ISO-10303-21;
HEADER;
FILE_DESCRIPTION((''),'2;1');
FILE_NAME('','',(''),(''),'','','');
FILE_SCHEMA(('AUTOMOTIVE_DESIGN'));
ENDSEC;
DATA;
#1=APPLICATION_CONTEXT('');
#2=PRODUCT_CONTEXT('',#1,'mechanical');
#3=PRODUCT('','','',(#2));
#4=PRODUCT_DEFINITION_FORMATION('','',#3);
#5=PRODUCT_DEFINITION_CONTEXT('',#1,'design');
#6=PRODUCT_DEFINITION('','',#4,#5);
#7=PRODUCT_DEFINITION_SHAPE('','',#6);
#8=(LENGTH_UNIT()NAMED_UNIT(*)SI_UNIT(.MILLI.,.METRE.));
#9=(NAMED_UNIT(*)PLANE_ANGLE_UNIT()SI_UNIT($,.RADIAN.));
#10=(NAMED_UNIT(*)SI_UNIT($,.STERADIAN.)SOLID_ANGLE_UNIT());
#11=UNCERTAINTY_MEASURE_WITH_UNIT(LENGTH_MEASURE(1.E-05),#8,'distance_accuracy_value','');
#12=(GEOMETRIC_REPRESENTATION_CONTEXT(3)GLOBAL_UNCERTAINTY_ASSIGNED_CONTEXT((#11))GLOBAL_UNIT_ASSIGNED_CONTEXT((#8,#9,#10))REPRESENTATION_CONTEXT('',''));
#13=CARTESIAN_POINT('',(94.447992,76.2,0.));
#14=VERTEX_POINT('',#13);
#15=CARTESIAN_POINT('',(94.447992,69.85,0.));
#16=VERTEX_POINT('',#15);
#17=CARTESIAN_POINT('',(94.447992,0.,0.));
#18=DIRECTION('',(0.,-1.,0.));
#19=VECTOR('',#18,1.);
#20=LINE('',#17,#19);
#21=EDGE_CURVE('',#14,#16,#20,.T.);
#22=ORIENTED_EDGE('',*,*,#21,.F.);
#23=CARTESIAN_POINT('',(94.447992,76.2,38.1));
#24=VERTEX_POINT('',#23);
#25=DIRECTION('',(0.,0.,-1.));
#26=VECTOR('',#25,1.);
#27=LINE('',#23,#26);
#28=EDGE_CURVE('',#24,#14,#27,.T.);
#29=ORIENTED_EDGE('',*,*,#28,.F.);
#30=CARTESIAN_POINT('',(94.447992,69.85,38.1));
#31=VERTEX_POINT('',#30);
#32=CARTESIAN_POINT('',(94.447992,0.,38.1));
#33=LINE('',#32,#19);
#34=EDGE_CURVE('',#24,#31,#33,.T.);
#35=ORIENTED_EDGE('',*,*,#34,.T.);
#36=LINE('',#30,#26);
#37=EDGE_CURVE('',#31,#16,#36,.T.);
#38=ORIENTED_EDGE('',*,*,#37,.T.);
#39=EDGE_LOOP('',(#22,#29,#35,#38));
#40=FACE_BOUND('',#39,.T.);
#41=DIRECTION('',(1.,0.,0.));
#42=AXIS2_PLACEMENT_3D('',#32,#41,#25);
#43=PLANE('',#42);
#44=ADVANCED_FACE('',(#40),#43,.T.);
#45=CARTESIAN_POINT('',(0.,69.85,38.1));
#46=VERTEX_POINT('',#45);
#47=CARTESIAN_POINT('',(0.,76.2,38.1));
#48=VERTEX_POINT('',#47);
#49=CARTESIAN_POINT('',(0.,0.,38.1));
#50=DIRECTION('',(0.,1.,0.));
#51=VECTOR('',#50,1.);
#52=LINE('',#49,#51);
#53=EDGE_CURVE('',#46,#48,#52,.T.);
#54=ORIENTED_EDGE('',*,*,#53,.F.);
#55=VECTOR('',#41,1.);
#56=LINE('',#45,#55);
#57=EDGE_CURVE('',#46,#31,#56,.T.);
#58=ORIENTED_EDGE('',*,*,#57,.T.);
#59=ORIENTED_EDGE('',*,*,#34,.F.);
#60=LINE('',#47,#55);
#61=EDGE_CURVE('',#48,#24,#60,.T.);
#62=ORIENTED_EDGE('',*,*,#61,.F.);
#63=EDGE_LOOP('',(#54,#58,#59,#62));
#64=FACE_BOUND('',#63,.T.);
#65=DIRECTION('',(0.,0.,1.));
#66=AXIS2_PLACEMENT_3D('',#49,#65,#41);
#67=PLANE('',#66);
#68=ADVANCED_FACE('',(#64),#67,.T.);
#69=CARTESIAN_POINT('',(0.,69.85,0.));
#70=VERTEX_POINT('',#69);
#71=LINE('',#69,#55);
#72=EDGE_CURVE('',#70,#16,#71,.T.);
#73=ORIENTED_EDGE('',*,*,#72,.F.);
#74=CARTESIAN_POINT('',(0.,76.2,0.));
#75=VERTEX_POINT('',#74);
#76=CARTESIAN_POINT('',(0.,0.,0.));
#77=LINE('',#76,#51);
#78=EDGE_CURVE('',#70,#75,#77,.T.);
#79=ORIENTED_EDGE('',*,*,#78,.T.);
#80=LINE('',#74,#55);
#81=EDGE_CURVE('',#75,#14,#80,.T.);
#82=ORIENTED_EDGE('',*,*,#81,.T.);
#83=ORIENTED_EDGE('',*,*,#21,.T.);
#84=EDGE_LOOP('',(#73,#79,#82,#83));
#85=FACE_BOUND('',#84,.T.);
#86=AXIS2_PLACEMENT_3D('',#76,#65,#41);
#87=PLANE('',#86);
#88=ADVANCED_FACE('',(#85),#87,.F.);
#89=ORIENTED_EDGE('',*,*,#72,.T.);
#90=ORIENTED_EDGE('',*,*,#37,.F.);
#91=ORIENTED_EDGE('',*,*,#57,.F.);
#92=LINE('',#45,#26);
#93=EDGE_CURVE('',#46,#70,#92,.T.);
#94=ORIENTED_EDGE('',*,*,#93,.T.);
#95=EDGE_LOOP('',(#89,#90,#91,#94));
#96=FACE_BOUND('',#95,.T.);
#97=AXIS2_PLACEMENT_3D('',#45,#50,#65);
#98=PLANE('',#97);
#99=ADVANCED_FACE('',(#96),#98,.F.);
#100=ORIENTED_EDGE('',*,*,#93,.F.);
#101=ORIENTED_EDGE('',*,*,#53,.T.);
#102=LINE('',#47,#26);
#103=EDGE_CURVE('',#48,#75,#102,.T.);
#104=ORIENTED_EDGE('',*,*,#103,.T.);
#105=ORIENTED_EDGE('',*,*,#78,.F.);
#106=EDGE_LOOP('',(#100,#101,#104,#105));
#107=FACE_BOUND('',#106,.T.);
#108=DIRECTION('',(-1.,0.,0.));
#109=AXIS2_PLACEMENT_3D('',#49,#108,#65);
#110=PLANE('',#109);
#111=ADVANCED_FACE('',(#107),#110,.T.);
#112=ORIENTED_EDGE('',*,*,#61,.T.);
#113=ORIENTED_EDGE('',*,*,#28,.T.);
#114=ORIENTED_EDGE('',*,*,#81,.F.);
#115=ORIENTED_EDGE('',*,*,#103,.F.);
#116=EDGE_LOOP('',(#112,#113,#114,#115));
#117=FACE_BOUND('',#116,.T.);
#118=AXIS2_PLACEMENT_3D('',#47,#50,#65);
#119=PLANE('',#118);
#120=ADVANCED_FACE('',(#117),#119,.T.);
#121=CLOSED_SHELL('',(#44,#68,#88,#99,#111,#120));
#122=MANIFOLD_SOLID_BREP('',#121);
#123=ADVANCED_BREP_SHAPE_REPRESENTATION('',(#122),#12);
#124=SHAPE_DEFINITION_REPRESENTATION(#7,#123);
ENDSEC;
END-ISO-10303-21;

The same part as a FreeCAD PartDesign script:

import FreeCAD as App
import Part
import Sketcher
Q = App.Units.Quantity

doc = App.newDocument("Part")
body = doc.addObject("PartDesign::Body", "Body")

sketch1 = doc.addObject("Sketcher::SketchObject", "Sketch")
body.addObject(sketch1)
sketch1.AttachmentSupport = (doc.XY_Plane, [""])
sketch1.MapMode = "FlatFace"
sketch1.addGeometry([
    Part.LineSegment(App.Vector(0, 76, 0), App.Vector(0, 0, 0)),
    Part.LineSegment(App.Vector(0, 0, 0), App.Vector(6, 0, 0)),
    Part.LineSegment(App.Vector(6, 0, 0), App.Vector(6, 70, 0)),
    Part.LineSegment(App.Vector(6, 70, 0), App.Vector(94, 70, 0)),
    Part.LineSegment(App.Vector(94, 70, 0), App.Vector(94, 102, 0)),
    Part.LineSegment(App.Vector(94, 102, 0), App.Vector(88, 102, 0)),
    Part.LineSegment(App.Vector(88, 102, 0), App.Vector(88, 76, 0)),
    Part.LineSegment(App.Vector(88, 76, 0), App.Vector(0, 76, 0)),
], False)
sketch1.addConstraint([
    Sketcher.Constraint("Coincident", 0, 2, 1, 1),
    Sketcher.Constraint("Coincident", 1, 2, 2, 1),
    Sketcher.Constraint("Coincident", 2, 2, 3, 1),
    Sketcher.Constraint("Coincident", 3, 2, 4, 1),
    Sketcher.Constraint("Coincident", 4, 2, 5, 1),
    Sketcher.Constraint("Coincident", 5, 2, 6, 1),
    Sketcher.Constraint("Coincident", 6, 2, 7, 1),
    Sketcher.Constraint("Coincident", 7, 2, 0, 1),
    Sketcher.Constraint("Vertical", 0),
    Sketcher.Constraint("Horizontal", 1),
    Sketcher.Constraint("Vertical", 2),
    Sketcher.Constraint("Horizontal", 3),
    Sketcher.Constraint("Vertical", 4),
    Sketcher.Constraint("Horizontal", 5),
    Sketcher.Constraint("Vertical", 6),
    Sketcher.Constraint("Horizontal", 7),
    Sketcher.Constraint("Coincident", 0, 2, -1, 1),
    Sketcher.Constraint("Equal", 1, 5),
    Sketcher.Constraint("DistanceY", 0, 2, 0, 1, Q("3 in")),
    Sketcher.Constraint("DistanceY", 6, 2, 6, 1, Q("1 in")),
    Sketcher.Constraint("DistanceX", 1, 1, 1, 2, Q("0.25 in")),
    Sketcher.Constraint("DistanceY", 2, 1, 2, 2, Q("2.75 in")),
    Sketcher.Constraint("DistanceX", 3, 1, 3, 2, Q("88.097992 mm")),
])
pad1 = doc.addObject("PartDesign::Pad", "Pad")
body.addObject(pad1)
pad1.Profile = sketch1
pad1.Length = Q("1.5 in")

sketch2 = doc.addObject("Sketcher::SketchObject", "Sketch001")
body.addObject(sketch2)
sketch2.AttachmentSupport = (doc.YZ_Plane, [""])
sketch2.MapMode = "FlatFace"
sketch2.addGeometry(Part.Circle(App.Vector(20, 19, 0), App.Vector(0, 0, 1), 11), False)
sketch2.addConstraint([
    Sketcher.Constraint("Diameter", 0, Q("0.87 in")),
    Sketcher.Constraint("DistanceX", -1, 1, 0, 3, Q("0.8 in")),
    Sketcher.Constraint("DistanceY", -1, 1, 0, 3, Q("0.75 in")),
])
pocket1 = doc.addObject("PartDesign::Pocket", "Pocket")
body.addObject(pocket1)
pocket1.Profile = sketch2
pocket1.Length = Q("0.25 in")
pocket1.Reversed = True

sketch3 = doc.addObject("Sketcher::SketchObject", "Sketch002")
body.addObject(sketch3)
sketch3.AttachmentSupport = (doc.YZ_Plane, [""])
sketch3.MapMode = "FlatFace"
sketch3.addGeometry(Part.Circle(App.Vector(42.7, 19.1, 0), App.Vector(0, 0, 1), 3.6), False)
sketch3.addConstraint([
    Sketcher.Constraint("Diameter", 0, Q("0.28 in")),
    Sketcher.Constraint("DistanceX", -1, 1, 0, 3, Q("1.68 in")),
    Sketcher.Constraint("DistanceY", -1, 1, 0, 3, Q("0.75 in")),
])
pocket2 = doc.addObject("PartDesign::Pocket", "Pocket001")
body.addObject(pocket2)
pocket2.Profile = sketch3
pocket2.Length = Q("0.25 in")
pocket2.Reversed = True

sketch4 = doc.addObject("Sketcher::SketchObject", "Sketch003")
body.addObject(sketch4)
sketch4.AttachmentSupport = (doc.XY_Plane, [""])
sketch4.MapMode = "FlatFace"
sketch4.AttachmentOffset = App.Placement(App.Vector(0, 0, 1.5 * 25.4), App.Rotation())
sketch4.addGeometry([
    Part.LineSegment(App.Vector(88, 113, 0), App.Vector(88, 76, 0)),
    Part.LineSegment(App.Vector(88, 76, 0), App.Vector(102, 76, 0)),
    Part.LineSegment(App.Vector(102, 76, 0), App.Vector(102, 113, 0)),
    Part.LineSegment(App.Vector(102, 113, 0), App.Vector(88, 113, 0)),
    Part.LineSegment(App.Vector(-28, 70, 0), App.Vector(-28, -10, 0)),
    Part.LineSegment(App.Vector(-28, -10, 0), App.Vector(6, -10, 0)),
    Part.LineSegment(App.Vector(6, -10, 0), App.Vector(6, 70, 0)),
    Part.LineSegment(App.Vector(6, 70, 0), App.Vector(-28, 70, 0)),
], False)
sketch4.addConstraint([
    Sketcher.Constraint("Coincident", 0, 2, 1, 1),
    Sketcher.Constraint("Coincident", 1, 2, 2, 1),
    Sketcher.Constraint("Coincident", 2, 2, 3, 1),
    Sketcher.Constraint("Coincident", 3, 2, 0, 1),
    Sketcher.Constraint("Coincident", 4, 2, 5, 1),
    Sketcher.Constraint("Coincident", 5, 2, 6, 1),
    Sketcher.Constraint("Coincident", 6, 2, 7, 1),
    Sketcher.Constraint("Coincident", 7, 2, 4, 1),
    Sketcher.Constraint("Vertical", 0),
    Sketcher.Constraint("Horizontal", 1),
    Sketcher.Constraint("Vertical", 2),
    Sketcher.Constraint("Horizontal", 3),
    Sketcher.Constraint("Vertical", 4),
    Sketcher.Constraint("Horizontal", 5),
    Sketcher.Constraint("Vertical", 6),
    Sketcher.Constraint("Horizontal", 7),
    Sketcher.Constraint("DistanceY", -1, 1, 0, 2, Q("3 in")),
    Sketcher.Constraint("DistanceX", -1, 1, 5, 2, Q("0.25 in")),
    Sketcher.Constraint("DistanceY", -1, 1, 6, 2, Q("2.75 in")),
    Sketcher.Constraint("DistanceY", 4, 2, 4, 1, Q("3.1554002 in")),
    Sketcher.Constraint("DistanceX", 5, 1, 5, 2, Q("34.840931 mm")),
    Sketcher.Constraint("DistanceX", 1, 1, 1, 2, Q("14.244415 mm")),
    Sketcher.Constraint("DistanceY", 0, 2, 0, 1, Q("36.472405 mm")),
    Sketcher.Constraint("DistanceX", -1, 1, 0, 2, Q("88.097992 mm")),
])
pocket3 = doc.addObject("PartDesign::Pocket", "Pocket002")
body.addObject(pocket3)
pocket3.Profile = sketch4
pocket3.Length = Q("3 in")

doc.recompute()
